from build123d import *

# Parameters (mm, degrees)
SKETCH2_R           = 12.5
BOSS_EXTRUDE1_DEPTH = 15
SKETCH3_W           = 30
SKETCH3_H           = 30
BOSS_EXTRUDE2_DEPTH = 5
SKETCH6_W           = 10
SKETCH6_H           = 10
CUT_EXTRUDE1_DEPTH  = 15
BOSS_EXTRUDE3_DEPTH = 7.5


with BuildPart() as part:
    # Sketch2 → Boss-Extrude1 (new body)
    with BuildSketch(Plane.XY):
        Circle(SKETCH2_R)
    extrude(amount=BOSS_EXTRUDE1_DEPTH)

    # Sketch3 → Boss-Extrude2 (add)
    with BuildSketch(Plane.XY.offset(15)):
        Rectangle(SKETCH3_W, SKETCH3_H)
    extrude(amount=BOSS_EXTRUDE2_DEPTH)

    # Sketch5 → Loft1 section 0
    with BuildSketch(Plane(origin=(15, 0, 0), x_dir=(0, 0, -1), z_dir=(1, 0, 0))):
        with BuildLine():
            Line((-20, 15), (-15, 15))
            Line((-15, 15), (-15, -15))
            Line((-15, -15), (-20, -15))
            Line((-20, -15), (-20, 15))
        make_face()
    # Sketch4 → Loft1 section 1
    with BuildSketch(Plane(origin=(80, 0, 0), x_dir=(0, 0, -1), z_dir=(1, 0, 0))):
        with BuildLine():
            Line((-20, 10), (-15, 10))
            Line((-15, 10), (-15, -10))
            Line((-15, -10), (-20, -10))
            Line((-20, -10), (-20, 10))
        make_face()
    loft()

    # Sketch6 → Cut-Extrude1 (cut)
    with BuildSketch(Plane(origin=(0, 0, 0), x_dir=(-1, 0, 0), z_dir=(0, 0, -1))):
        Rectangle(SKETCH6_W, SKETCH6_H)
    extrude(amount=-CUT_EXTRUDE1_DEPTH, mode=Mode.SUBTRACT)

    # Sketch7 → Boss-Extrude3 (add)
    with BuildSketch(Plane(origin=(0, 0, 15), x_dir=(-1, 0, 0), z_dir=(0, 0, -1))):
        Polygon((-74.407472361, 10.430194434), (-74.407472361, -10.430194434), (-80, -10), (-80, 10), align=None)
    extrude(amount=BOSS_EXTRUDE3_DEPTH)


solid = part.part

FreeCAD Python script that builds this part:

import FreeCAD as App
import Part
import Sketcher
from FreeCAD import Vector
Q = App.Units.Quantity


def add_polygon(sketch, points):
    """Adds a closed chain of lines whose ends are joined by coincident constraints."""
    first, n = sketch.GeometryCount, len(points)
    for a, b in zip(points, points[1:] + points[:1]):
        sketch.addGeometry(Part.LineSegment(App.Vector(*a, 0), App.Vector(*b, 0)), False)
    for i in range(n):
        sketch.addConstraint(Sketcher.Constraint("Coincident", first + i, 2, first + (i + 1) % n, 1))

doc = App.newDocument("Part")
body = doc.addObject("PartDesign::Body", "Body")

# Sketch on XY plane
sketch1 = doc.addObject("Sketcher::SketchObject", "Sketch")
body.addObject(sketch1)
sketch1.AttachmentSupport = (doc.XY_Plane, [""])
sketch1.MapMode = "FlatFace"
sketch1.addGeometry(Part.Circle(Vector(0, 0, 0), Vector(0, 0, 1), 12), False)
sketch1.addConstraint([
    Sketcher.Constraint("Coincident", 0, 3, -1, 1),
    Sketcher.Constraint("Diameter", 0, Q("25 mm")),
])
pad1 = doc.addObject("PartDesign::Pad", "Pad")
body.addObject(pad1)
pad1.Profile = sketch1
pad1.Length = 15

# Sketch on XY plane
sketch2 = doc.addObject("Sketcher::SketchObject", "Sketch001")
body.addObject(sketch2)
sketch2.AttachmentSupport = (doc.XY_Plane, [""])
sketch2.MapMode = "FlatFace"
sketch2.AttachmentOffset = App.Placement(Vector(0, 0, 15), App.Rotation())
add_polygon(sketch2, [(-15, 15), (-15, -15), (15, -15), (15, 15)])  # lines 0-3
sketch2.addConstraint([
    Sketcher.Constraint("Vertical", 0),
    Sketcher.Constraint("Horizontal", 1),
    Sketcher.Constraint("Vertical", 2),
    Sketcher.Constraint("Horizontal", 3),
    Sketcher.Constraint("Symmetric", 0, 2, 2, 2, -1, 1),
    Sketcher.Constraint("Equal", 3, 0),
    Sketcher.Constraint("DistanceX", 1, 1, 1, 2, Q("30 mm")),
])
pad2 = doc.addObject("PartDesign::Pad", "Pad001")
body.addObject(pad2)
pad2.Profile = sketch2
pad2.Length = 5

# Sketch on YZ plane
sketch3 = doc.addObject("Sketcher::SketchObject", "Sketch002")
body.addObject(sketch3)
sketch3.AttachmentSupport = (doc.YZ_Plane, [""])
sketch3.MapMode = "FlatFace"
sketch3.AttachmentOffset = App.Placement(Vector(0, 0, 15), App.Rotation())
add_polygon(sketch3, [(15, 15), (15, 20), (-15, 20), (-15, 15)])  # lines 0-3
sketch3.addConstraint([
    Sketcher.Constraint("Vertical", 0),
    Sketcher.Constraint("Horizontal", 1),
    Sketcher.Constraint("Vertical", 2),
    Sketcher.Constraint("Horizontal", 3),
    Sketcher.Constraint("DistanceX", 1, 2, 1, 1, Q("30 mm")),
    Sketcher.Constraint("DistanceY", 0, 1, 0, 2, Q("5 mm")),
    Sketcher.Constraint("DistanceX", -1, 1, 0, 2, Q("15 mm")),
    Sketcher.Constraint("DistanceY", -1, 1, 0, 2, Q("20 mm")),
])

# Sketch on YZ plane
sketch4 = doc.addObject("Sketcher::SketchObject", "Sketch003")
body.addObject(sketch4)
sketch4.AttachmentSupport = (doc.YZ_Plane, [""])
sketch4.MapMode = "FlatFace"
sketch4.AttachmentOffset = App.Placement(Vector(0, 0, 80), App.Rotation())
add_polygon(sketch4, [(10, 15), (10, 20), (-10, 20), (-10, 15)])  # lines 0-3
sketch4.addConstraint([
    Sketcher.Constraint("Vertical", 0),
    Sketcher.Constraint("Horizontal", 1),
    Sketcher.Constraint("Vertical", 2),
    Sketcher.Constraint("Horizontal", 3),
    Sketcher.Constraint("DistanceX", 1, 2, 1, 1, Q("20 mm")),
    Sketcher.Constraint("DistanceY", 0, 1, 0, 2, Q("5 mm")),
    Sketcher.Constraint("DistanceX", -1, 1, 0, 2, Q("10 mm")),
    Sketcher.Constraint("DistanceY", -1, 1, 0, 2, Q("20 mm")),
])

additiveloft = doc.addObject("PartDesign::AdditiveLoft", "AdditiveLoft")
body.addObject(additiveloft)
additiveloft.Profile = sketch3
additiveloft.Sections = [sketch4]

# Sketch on XY plane
sketch5 = doc.addObject("Sketcher::SketchObject", "Sketch004")
body.addObject(sketch5)
sketch5.AttachmentSupport = (doc.XY_Plane, [""])
sketch5.MapMode = "FlatFace"
add_polygon(sketch5, [(5, 5), (5, -5), (-5, -5), (-5, 5)])  # lines 0-3
sketch5.addConstraint([
    Sketcher.Constraint("Vertical", 0),
    Sketcher.Constraint("Horizontal", 1),
    Sketcher.Constraint("Vertical", 2),
    Sketcher.Constraint("Horizontal", 3),
    Sketcher.Constraint("Symmetric", 0, 2, 2, 2, -1, 1),
    Sketcher.Constraint("Equal", 3, 0),
    Sketcher.Constraint("DistanceX", 1, 2, 1, 1, Q("10 mm")),
])
pocket1 = doc.addObject("PartDesign::Pocket", "Pocket")
body.addObject(pocket1)
pocket1.Profile = sketch5
pocket1.Length = 15
pocket1.Reversed = True

# Sketch on XY plane
sketch6 = doc.addObject("Sketcher::SketchObject", "Sketch005")
body.addObject(sketch6)
sketch6.AttachmentSupport = (doc.XY_Plane, [""])
sketch6.MapMode = "FlatFace"
sketch6.AttachmentOffset = App.Placement(Vector(0, 0, 15), App.Rotation())
add_polygon(sketch6, [(74.407472, -10.430194), (74.407472, 10.430194), (80, 10), (80, -10)])  # lines 0-3
sketch6.addConstraint([
    Sketcher.Constraint("Vertical", 0),
    Sketcher.Constraint("Vertical", 2),
    Sketcher.Constraint("Equal", 1, 3),
    Sketcher.Constraint("DistanceY", 2, 2, 2, 1, Q("20 mm")),
    Sketcher.Constraint("DistanceX", -1, 1, 1, 2, Q("80 mm")),
    Sketcher.Constraint("DistanceY", -1, 1, 1, 2, Q("10 mm")),
    Sketcher.Constraint("DistanceY", 0, 1, 0, 2, Q("20.860389 mm")),
    Sketcher.Constraint("Distance", 1, Q("5.609049 mm")),
])
pad3 = doc.addObject("PartDesign::Pad", "Pad002")
body.addObject(pad3)
pad3.Profile = sketch6
pad3.Length = 7.5
pad3.Reversed = True

doc.recompute()
